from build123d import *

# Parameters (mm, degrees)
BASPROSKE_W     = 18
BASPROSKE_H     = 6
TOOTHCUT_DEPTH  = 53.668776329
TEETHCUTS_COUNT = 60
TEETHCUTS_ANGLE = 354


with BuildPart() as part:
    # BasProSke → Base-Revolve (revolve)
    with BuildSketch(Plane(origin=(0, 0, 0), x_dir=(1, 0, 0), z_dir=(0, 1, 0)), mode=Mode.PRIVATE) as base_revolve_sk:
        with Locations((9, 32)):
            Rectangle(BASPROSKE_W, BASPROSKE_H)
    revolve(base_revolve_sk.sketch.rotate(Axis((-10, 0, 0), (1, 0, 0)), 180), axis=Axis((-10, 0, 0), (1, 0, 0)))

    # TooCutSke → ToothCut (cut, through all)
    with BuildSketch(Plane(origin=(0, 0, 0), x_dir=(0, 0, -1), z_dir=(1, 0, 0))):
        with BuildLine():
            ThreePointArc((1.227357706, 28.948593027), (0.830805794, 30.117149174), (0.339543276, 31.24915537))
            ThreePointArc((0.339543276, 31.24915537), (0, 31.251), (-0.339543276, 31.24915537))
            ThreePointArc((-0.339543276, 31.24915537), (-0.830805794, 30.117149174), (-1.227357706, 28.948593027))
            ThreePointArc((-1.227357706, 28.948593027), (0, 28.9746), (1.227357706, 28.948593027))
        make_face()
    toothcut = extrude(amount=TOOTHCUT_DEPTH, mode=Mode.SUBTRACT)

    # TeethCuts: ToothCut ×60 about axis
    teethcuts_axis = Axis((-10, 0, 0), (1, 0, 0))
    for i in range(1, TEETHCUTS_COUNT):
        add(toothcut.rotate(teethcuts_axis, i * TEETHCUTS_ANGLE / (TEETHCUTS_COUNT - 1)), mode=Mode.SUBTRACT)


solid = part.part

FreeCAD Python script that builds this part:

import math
import FreeCAD as App
import Part
import Sketcher

V = App.Vector

doc = App.newDocument("Part")
body = doc.addObject("PartDesign::Body", "Body")

# Sketch on XZ plane
sketch1 = body.newObject("Sketcher::SketchObject", "Sketch")
sketch1.AttachmentSupport = (doc.getObject("XZ_Plane"), [""])
sketch1.MapMode = "FlatFace"
sketch1.addGeometry(Part.LineSegment(V(0, -35, 0), V(0, -29, 0)), False)
sketch1.addGeometry(Part.LineSegment(V(0, -29, 0), V(18, -29, 0)), False)
sketch1.addGeometry(Part.LineSegment(V(18, -29, 0), V(18, -35, 0)), False)
sketch1.addGeometry(Part.LineSegment(V(18, -35, 0), V(0, -35, 0)), False)
sketch1.addConstraint(Sketcher.Constraint("Coincident", 0, 2, 1, 1))
sketch1.addConstraint(Sketcher.Constraint("Coincident", 1, 2, 2, 1))
sketch1.addConstraint(Sketcher.Constraint("Coincident", 2, 2, 3, 1))
sketch1.addConstraint(Sketcher.Constraint("Coincident", 3, 2, 0, 1))
sketch1.addConstraint(Sketcher.Constraint("Vertical", 0))
sketch1.addConstraint(Sketcher.Constraint("Horizontal", 1))
sketch1.addConstraint(Sketcher.Constraint("Vertical", 2))
sketch1.addConstraint(Sketcher.Constraint("Horizontal", 3))
sketch1.addConstraint(Sketcher.Constraint("PointOnObject", 0, 2, -2))
sketch1.addConstraint(Sketcher.Constraint("DistanceX", 1, 1, 1, 2, 18.0))
sketch1.addConstraint(Sketcher.Constraint("DistanceY", 0, 1, 0, 2, 6.0))
sketch1.addConstraint(Sketcher.Constraint("DistanceY", 0, 2, -1, 1, 29.0))
revolution = body.newObject("PartDesign::Revolution", "Revolution")
revolution.Profile = sketch1
revolution.ReferenceAxis = (sketch1, ["H_Axis"])
revolution.Angle = 360

# Sketch on YZ plane
sketch2 = body.newObject("Sketcher::SketchObject", "Sketch001")
sketch2.AttachmentSupport = (doc.getObject("YZ_Plane"), [""])
sketch2.MapMode = "FlatFace"
sketch2.addGeometry(Part.ArcOfCircle(Part.Circle(V(24.7, 13.2, 0), V(0, 0, 1), 15), math.radians(-73.61), math.radians(-64.18)), False)
sketch2.addGeometry(Part.ArcOfCircle(Part.Circle(V(0, 0, 0), V(0, 0, 1), 31.3), math.radians(-0.62), math.radians(0.62)), False)
sketch2.addGeometry(Part.ArcOfCircle(Part.Circle(V(24.7, -13.2, 0), V(0, 0, 1), 15), math.radians(64.18), math.radians(73.61)), False)
sketch2.addGeometry(Part.ArcOfCircle(Part.Circle(V(0, 0, 0), V(0, 0, 1), 29), math.radians(-2.43), math.radians(2.43)), False)
sketch2.addConstraint(Sketcher.Constraint("Coincident", 0, 2, 1, 1))
sketch2.addConstraint(Sketcher.Constraint("Coincident", 1, 2, 2, 1))
sketch2.addConstraint(Sketcher.Constraint("Coincident", 2, 2, 3, 2))
sketch2.addConstraint(Sketcher.Constraint("Coincident", 3, 1, 0, 1))
sketch2.addConstraint(Sketcher.Constraint("Coincident", 1, 3, -1, 1))
sketch2.addConstraint(Sketcher.Constraint("Coincident", 3, 3, -1, 1))
sketch2.addConstraint(Sketcher.Constraint("Equal", 0, 2))
sketch2.addConstraint(Sketcher.Constraint("Symmetric", 0, 3, 2, 3, -1))
sketch2.addConstraint(Sketcher.Constraint("Radius", 0, 15.0))
sketch2.addConstraint(Sketcher.Constraint("Radius", 3, 28.9746))
sketch2.addConstraint(Sketcher.Constraint("Radius", 1, 31.250993))
sketch2.addConstraint(Sketcher.Constraint("DistanceY", 0, 2, 2, 2, 1.566901))
sketch2.addConstraint(Sketcher.Constraint("DistanceX", -1, 1, 0, 3, 24.716661))
pocket1 = body.newObject("PartDesign::Pocket", "Pocket")
pocket1.Profile = sketch2
pocket1.Type = "ThroughAll"
pocket1.Reversed = True
doc.recompute()

polarpattern = body.newObject("PartDesign::PolarPattern", "PolarPattern")
polarpattern.Originals = [pocket1]
polarpattern.Axis = (doc.getObject("X_Axis"), [""])
polarpattern.Angle = 360
polarpattern.Occurrences = 60
body.Tip = polarpattern

doc.recompute()
